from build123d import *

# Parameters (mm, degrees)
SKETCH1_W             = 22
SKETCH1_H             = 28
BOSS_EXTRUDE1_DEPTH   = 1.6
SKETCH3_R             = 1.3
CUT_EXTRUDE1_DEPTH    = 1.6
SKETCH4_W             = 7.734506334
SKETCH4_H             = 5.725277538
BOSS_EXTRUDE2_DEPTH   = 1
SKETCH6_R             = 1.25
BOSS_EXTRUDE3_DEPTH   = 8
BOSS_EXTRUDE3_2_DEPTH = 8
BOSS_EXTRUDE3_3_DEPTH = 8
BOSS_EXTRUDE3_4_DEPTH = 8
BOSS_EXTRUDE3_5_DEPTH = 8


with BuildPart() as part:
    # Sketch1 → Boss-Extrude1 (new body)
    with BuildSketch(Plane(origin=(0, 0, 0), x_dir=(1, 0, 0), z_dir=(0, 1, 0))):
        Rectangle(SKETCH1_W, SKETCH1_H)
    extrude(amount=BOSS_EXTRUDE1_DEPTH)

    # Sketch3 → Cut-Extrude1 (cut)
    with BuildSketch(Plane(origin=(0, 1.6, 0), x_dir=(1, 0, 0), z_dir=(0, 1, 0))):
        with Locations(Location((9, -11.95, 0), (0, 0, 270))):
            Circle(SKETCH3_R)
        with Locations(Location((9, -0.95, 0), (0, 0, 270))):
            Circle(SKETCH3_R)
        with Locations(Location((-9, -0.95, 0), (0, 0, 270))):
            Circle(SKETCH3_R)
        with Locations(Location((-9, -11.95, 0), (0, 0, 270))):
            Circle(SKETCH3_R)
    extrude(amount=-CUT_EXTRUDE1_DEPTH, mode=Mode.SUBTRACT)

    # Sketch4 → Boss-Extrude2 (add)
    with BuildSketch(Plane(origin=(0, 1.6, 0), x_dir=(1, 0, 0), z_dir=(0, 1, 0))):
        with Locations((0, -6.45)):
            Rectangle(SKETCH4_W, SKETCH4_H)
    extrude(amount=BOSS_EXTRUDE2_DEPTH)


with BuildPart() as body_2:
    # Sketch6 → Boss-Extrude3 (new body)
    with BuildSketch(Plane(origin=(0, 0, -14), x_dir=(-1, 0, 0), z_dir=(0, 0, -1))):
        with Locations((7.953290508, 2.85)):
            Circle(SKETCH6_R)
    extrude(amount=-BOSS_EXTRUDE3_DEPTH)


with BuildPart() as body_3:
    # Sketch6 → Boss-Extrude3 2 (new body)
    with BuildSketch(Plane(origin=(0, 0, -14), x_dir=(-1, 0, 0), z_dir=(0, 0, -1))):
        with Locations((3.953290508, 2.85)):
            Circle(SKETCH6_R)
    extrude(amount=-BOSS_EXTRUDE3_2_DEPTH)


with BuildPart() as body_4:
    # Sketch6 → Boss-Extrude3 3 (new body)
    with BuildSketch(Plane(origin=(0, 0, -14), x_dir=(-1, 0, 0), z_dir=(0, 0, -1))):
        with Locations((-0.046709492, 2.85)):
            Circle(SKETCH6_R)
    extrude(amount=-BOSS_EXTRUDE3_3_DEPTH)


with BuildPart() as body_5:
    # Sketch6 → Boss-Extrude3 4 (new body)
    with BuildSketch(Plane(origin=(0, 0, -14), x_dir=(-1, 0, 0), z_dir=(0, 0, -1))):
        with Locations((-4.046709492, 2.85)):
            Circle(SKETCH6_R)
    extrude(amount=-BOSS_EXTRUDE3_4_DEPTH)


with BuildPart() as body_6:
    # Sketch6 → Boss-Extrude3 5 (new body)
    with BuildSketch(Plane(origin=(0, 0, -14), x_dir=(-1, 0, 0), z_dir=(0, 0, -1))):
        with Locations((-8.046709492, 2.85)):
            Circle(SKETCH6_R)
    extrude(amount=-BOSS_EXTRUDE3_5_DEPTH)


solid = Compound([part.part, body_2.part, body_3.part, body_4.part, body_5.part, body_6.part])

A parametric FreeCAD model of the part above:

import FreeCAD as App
import Part
import Sketcher
Q = App.Units.Quantity


def add_polygon(sketch, points):
    """Adds a closed chain of lines whose ends are joined by coincident constraints."""
    first, n = sketch.GeometryCount, len(points)
    for a, b in zip(points, points[1:] + points[:1]):
        sketch.addGeometry(Part.LineSegment(App.Vector(*a, 0), App.Vector(*b, 0)), False)
    for i in range(n):
        sketch.addConstraint(Sketcher.Constraint("Coincident", first + i, 2, first + (i + 1) % n, 1))

doc = App.newDocument("Part")
body = doc.addObject("PartDesign::Body", "Body")

sketch1 = body.newObject("Sketcher::SketchObject", "Sketch")
sketch1.AttachmentSupport = (doc.getObject("XZ_Plane"), [""])
sketch1.MapMode = "FlatFace"
add_polygon(sketch1, [(-11, -14), (-11, 14), (11, 14), (11, -14)])
sketch1.addConstraint(Sketcher.Constraint("Vertical", 0))
sketch1.addConstraint(Sketcher.Constraint("Horizontal", 1))
sketch1.addConstraint(Sketcher.Constraint("Vertical", 2))
sketch1.addConstraint(Sketcher.Constraint("Horizontal", 3))
sketch1.addConstraint(Sketcher.Constraint("Symmetric", 0, 2, 2, 2, -1, 1))
sketch1.addConstraint(Sketcher.Constraint("DistanceX", 1, 1, 1, 2, Q("22 mm")))
sketch1.addConstraint(Sketcher.Constraint("DistanceY", 0, 1, 0, 2, Q("28 mm")))
pad1 = body.newObject("PartDesign::Pad", "Pad")
pad1.Profile = sketch1
pad1.Length = 1.6
pad1.Reversed = True

sketch2 = body.newObject("Sketcher::SketchObject", "Sketch001")
sketch2.AttachmentSupport = (doc.getObject("XZ_Plane"), [""])
sketch2.MapMode = "FlatFace"
sketch2.AttachmentOffset = App.Placement(App.Vector(0, 0, -1.6), App.Rotation())
sketch2.addGeometry(Part.Circle(App.Vector(9, 11.95, 0), App.Vector(0, 0, 1), 1.3), False)
sketch2.addGeometry(Part.Circle(App.Vector(9, 0.95, 0), App.Vector(0, 0, 1), 1.3), False)
sketch2.addGeometry(Part.Circle(App.Vector(-9, 0.95, 0), App.Vector(0, 0, 1), 1.3), False)
sketch2.addGeometry(Part.Circle(App.Vector(-9, 11.95, 0), App.Vector(0, 0, 1), 1.3), False)
sketch2.addConstraint(Sketcher.Constraint("Equal", 0, 1))
sketch2.addConstraint(Sketcher.Constraint("Equal", 1, 2))
sketch2.addConstraint(Sketcher.Constraint("Equal", 2, 3))
sketch2.addConstraint(Sketcher.Constraint("Symmetric", 1, 3, 2, 3, -2))
sketch2.addConstraint(Sketcher.Constraint("Symmetric", 0, 3, 3, 3, -2))
sketch2.addConstraint(Sketcher.Constraint("Vertical", 0, 3, 1, 3))
sketch2.addConstraint(Sketcher.Constraint("Diameter", 0, Q("2.6 mm")))
sketch2.addConstraint(Sketcher.Constraint("DistanceX", -1, 1, 0, 3, Q("9 mm")))
sketch2.addConstraint(Sketcher.Constraint("DistanceY", 1, 3, 0, 3, Q("11 mm")))
sketch2.addConstraint(Sketcher.Constraint("DistanceY", -1, 1, 0, 3, Q("11.95 mm")))
pocket1 = body.newObject("PartDesign::Pocket", "Pocket")
pocket1.Profile = sketch2
pocket1.Length = 1.6
pocket1.Reversed = True

sketch3 = body.newObject("Sketcher::SketchObject", "Sketch002")
sketch3.AttachmentSupport = (doc.getObject("XZ_Plane"), [""])
sketch3.MapMode = "FlatFace"
sketch3.AttachmentOffset = App.Placement(App.Vector(0, 0, -1.6), App.Rotation())
add_polygon(sketch3, [(-3.867253, 3.587361), (-3.867253, 9.312639), (3.867253, 9.312639), (3.867253, 3.587361)])
sketch3.addConstraint(Sketcher.Constraint("Vertical", 0))
sketch3.addConstraint(Sketcher.Constraint("Horizontal", 1))
sketch3.addConstraint(Sketcher.Constraint("Vertical", 2))
sketch3.addConstraint(Sketcher.Constraint("Horizontal", 3))
sketch3.addConstraint(Sketcher.Constraint("DistanceX", 1, 1, 1, 2, Q("7.734506 mm")))
sketch3.addConstraint(Sketcher.Constraint("DistanceY", 0, 1, 0, 2, Q("5.725278 mm")))
sketch3.addConstraint(Sketcher.Constraint("DistanceY", -1, 1, 0, 2, Q("9.312639 mm")))
sketch3.addConstraint(Sketcher.Constraint("DistanceX", 0, 2, -1, 1, Q("3.867253 mm")))
pad2 = body.newObject("PartDesign::Pad", "Pad001")
pad2.Profile = sketch3
pad2.Length = 1
pad2.Reversed = True
body2 = doc.addObject("PartDesign::Body", "Body001")

sketch4 = body2.newObject("Sketcher::SketchObject", "Sketch003")
sketch4.AttachmentSupport = (doc.getObject("XY_Plane001"), [""])
sketch4.MapMode = "FlatFace"
sketch4.AttachmentOffset = App.Placement(App.Vector(0, 0, -14), App.Rotation())
sketch4.addGeometry(Part.Circle(App.Vector(-7.953291, 2.85, 0), App.Vector(0, 0, 1), 1.25), False)
sketch4.addConstraint(Sketcher.Constraint("Diameter", 0, Q("2.5 mm")))
sketch4.addConstraint(Sketcher.Constraint("DistanceY", -1, 1, 0, 3, Q("2.85 mm")))
sketch4.addConstraint(Sketcher.Constraint("DistanceX", 0, 3, -1, 1, Q("7.953291 mm")))
pad3 = body2.newObject("PartDesign::Pad", "Pad002")
pad3.Profile = sketch4
pad3.Length = 8
body3 = doc.addObject("PartDesign::Body", "Body002")

sketch5 = body3.newObject("Sketcher::SketchObject", "Sketch004")
sketch5.AttachmentSupport = (doc.getObject("XY_Plane002"), [""])
sketch5.MapMode = "FlatFace"
sketch5.AttachmentOffset = App.Placement(App.Vector(0, 0, -14), App.Rotation())
sketch5.addGeometry(Part.Circle(App.Vector(-3.953291, 2.85, 0), App.Vector(0, 0, 1), 1.25), False)
sketch5.addConstraint(Sketcher.Constraint("Diameter", 0, Q("2.5 mm")))
sketch5.addConstraint(Sketcher.Constraint("DistanceY", -1, 1, 0, 3, Q("2.85 mm")))
sketch5.addConstraint(Sketcher.Constraint("DistanceX", 0, 3, -1, 1, Q("3.953291 mm")))
pad4 = body3.newObject("PartDesign::Pad", "Pad003")
pad4.Profile = sketch5
pad4.Length = 8
body4 = doc.addObject("PartDesign::Body", "Body003")

sketch6 = body4.newObject("Sketcher::SketchObject", "Sketch005")
sketch6.AttachmentSupport = (doc.getObject("XY_Plane003"), [""])
sketch6.MapMode = "FlatFace"
sketch6.AttachmentOffset = App.Placement(App.Vector(0, 0, -14), App.Rotation())
sketch6.addGeometry(Part.Circle(App.Vector(0.046709, 2.85, 0), App.Vector(0, 0, 1), 1.25), False)
sketch6.addConstraint(Sketcher.Constraint("Diameter", 0, Q("2.5 mm")))
sketch6.addConstraint(Sketcher.Constraint("DistanceY", -1, 1, 0, 3, Q("2.85 mm")))
sketch6.addConstraint(Sketcher.Constraint("DistanceX", -1, 1, 0, 3, Q("0.046709 mm")))
pad5 = body4.newObject("PartDesign::Pad", "Pad004")
pad5.Profile = sketch6
pad5.Length = 8
body5 = doc.addObject("PartDesign::Body", "Body004")

sketch7 = body5.newObject("Sketcher::SketchObject", "Sketch006")
sketch7.AttachmentSupport = (doc.getObject("XY_Plane004"), [""])
sketch7.MapMode = "FlatFace"
sketch7.AttachmentOffset = App.Placement(App.Vector(0, 0, -14), App.Rotation())
sketch7.addGeometry(Part.Circle(App.Vector(4.046709, 2.85, 0), App.Vector(0, 0, 1), 1.25), False)
sketch7.addConstraint(Sketcher.Constraint("Diameter", 0, Q("2.5 mm")))
sketch7.addConstraint(Sketcher.Constraint("DistanceY", -1, 1, 0, 3, Q("2.85 mm")))
sketch7.addConstraint(Sketcher.Constraint("DistanceX", -1, 1, 0, 3, Q("4.046709 mm")))
pad6 = body5.newObject("PartDesign::Pad", "Pad005")
pad6.Profile = sketch7
pad6.Length = 8
body6 = doc.addObject("PartDesign::Body", "Body005")

sketch8 = body6.newObject("Sketcher::SketchObject", "Sketch007")
sketch8.AttachmentSupport = (doc.getObject("XY_Plane005"), [""])
sketch8.MapMode = "FlatFace"
sketch8.AttachmentOffset = App.Placement(App.Vector(0, 0, -14), App.Rotation())
sketch8.addGeometry(Part.Circle(App.Vector(8.046709, 2.85, 0), App.Vector(0, 0, 1), 1.25), False)
sketch8.addConstraint(Sketcher.Constraint("Diameter", 0, Q("2.5 mm")))
sketch8.addConstraint(Sketcher.Constraint("DistanceY", -1, 1, 0, 3, Q("2.85 mm")))
sketch8.addConstraint(Sketcher.Constraint("DistanceX", -1, 1, 0, 3, Q("8.046709 mm")))
pad7 = body6.newObject("PartDesign::Pad", "Pad006")
pad7.Profile = sketch8
pad7.Length = 8

doc.recompute()
